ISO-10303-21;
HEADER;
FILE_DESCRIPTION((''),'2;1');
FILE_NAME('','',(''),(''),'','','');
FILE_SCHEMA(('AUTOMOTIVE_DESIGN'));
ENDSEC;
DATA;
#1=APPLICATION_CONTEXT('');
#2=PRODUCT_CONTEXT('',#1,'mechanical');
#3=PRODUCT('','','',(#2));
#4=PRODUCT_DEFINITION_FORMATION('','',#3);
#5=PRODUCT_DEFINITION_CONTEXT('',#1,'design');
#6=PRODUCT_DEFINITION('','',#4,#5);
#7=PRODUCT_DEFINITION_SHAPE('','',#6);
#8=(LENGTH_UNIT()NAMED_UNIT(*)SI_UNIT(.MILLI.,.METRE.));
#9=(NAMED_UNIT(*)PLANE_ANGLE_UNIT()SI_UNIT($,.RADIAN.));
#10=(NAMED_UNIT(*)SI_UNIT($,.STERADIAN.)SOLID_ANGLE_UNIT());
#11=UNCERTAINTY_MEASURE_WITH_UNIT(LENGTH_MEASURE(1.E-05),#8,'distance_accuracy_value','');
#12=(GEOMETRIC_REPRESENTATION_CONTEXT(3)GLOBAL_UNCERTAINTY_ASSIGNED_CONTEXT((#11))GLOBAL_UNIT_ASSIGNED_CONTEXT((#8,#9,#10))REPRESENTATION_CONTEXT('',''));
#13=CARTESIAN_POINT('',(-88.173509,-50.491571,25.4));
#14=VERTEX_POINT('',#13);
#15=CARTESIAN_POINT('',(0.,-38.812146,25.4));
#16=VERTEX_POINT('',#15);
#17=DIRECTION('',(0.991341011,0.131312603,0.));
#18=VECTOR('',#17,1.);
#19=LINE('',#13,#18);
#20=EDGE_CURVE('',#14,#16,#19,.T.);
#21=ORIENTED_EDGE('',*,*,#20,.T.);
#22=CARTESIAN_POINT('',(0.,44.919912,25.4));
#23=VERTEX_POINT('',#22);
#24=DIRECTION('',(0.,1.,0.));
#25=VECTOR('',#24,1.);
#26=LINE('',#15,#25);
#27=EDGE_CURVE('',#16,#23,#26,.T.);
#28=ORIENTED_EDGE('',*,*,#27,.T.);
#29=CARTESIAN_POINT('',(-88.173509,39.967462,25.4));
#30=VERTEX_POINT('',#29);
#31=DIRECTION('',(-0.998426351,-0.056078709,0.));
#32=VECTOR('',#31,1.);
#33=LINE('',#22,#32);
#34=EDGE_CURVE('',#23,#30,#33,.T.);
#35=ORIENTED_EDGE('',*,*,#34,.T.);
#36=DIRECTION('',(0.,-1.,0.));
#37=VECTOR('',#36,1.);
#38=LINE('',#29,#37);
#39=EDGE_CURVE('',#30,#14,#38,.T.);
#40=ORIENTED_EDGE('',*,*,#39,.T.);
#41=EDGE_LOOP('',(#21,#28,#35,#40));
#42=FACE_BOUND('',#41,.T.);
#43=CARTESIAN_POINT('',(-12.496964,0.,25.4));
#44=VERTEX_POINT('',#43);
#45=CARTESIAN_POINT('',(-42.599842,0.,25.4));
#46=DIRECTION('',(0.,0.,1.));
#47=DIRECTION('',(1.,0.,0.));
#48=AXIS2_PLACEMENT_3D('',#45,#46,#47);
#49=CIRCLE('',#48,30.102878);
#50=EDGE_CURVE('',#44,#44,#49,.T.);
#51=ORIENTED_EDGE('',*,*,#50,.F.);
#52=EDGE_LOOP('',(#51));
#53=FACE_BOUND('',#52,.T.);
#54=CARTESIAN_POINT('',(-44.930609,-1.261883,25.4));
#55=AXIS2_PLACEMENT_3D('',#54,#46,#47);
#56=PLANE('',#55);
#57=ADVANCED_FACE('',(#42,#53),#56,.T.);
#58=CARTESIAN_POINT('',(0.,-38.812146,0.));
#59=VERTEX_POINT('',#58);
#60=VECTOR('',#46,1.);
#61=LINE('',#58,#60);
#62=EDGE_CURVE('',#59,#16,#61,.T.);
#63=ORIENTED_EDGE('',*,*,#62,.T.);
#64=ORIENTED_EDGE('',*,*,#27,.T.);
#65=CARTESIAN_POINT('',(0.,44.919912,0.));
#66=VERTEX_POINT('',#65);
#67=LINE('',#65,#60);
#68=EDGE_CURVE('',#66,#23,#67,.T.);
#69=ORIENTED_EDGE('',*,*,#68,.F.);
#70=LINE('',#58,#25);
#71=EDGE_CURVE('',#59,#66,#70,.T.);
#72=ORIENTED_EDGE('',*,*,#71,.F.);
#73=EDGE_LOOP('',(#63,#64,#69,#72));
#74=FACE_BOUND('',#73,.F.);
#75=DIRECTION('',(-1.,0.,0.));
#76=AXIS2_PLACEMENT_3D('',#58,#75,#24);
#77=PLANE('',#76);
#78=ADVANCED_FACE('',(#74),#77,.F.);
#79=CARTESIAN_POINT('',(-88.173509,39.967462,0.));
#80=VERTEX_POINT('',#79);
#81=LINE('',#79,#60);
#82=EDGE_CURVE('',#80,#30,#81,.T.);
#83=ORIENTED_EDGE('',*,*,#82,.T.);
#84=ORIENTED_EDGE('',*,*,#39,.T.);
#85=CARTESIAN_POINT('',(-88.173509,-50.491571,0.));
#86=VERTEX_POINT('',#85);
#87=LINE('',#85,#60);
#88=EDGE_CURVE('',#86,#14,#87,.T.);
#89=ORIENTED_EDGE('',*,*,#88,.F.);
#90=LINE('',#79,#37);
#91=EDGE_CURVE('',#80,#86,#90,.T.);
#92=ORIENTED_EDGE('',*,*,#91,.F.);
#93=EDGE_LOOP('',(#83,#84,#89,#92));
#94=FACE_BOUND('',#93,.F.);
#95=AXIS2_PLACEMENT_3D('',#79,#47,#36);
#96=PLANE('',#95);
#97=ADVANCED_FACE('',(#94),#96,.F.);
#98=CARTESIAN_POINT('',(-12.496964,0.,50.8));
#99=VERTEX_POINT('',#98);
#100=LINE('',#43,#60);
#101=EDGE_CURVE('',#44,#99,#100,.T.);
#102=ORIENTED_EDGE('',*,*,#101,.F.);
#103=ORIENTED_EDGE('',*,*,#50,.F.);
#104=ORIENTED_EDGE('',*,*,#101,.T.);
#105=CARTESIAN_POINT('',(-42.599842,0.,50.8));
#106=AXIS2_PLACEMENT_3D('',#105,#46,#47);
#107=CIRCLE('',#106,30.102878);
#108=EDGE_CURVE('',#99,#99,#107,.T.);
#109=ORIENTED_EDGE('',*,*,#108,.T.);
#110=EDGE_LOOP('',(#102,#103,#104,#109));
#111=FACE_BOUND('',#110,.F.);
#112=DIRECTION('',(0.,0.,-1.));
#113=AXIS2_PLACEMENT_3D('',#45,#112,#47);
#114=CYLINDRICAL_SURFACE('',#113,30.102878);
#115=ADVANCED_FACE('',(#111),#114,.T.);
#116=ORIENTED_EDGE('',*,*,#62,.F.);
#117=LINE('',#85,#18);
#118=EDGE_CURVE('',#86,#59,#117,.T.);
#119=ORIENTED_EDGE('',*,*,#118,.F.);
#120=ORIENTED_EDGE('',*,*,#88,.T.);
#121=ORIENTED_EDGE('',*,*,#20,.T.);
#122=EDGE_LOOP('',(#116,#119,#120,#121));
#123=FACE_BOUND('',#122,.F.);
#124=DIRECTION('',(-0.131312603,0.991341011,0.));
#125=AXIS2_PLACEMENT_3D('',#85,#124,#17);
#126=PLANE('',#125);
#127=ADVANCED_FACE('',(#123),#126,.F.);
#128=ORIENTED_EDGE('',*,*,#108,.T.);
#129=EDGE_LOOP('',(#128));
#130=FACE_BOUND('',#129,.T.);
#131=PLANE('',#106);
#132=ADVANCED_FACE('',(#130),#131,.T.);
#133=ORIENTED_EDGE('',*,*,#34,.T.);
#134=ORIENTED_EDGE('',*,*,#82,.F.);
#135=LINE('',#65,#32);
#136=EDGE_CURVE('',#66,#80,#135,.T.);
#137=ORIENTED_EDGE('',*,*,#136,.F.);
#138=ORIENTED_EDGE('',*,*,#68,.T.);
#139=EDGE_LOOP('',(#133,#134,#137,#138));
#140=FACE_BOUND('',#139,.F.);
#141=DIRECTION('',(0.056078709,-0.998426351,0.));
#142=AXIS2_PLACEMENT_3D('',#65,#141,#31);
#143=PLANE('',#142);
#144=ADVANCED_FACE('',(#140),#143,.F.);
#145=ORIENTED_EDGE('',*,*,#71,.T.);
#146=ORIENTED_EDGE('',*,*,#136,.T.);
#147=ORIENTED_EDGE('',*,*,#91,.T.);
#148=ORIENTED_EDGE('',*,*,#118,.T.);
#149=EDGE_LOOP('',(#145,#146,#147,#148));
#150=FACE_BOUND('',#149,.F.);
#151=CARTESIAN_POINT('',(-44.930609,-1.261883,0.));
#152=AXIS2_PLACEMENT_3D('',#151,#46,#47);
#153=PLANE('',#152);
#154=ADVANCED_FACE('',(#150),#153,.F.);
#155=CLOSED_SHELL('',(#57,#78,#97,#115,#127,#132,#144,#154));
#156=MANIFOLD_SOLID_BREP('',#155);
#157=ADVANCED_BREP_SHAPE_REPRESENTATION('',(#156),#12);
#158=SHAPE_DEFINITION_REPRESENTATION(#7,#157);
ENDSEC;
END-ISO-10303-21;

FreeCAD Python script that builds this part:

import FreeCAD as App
import Part
import Sketcher
Q = App.Units.Quantity


def add_polygon(sketch, points):
    """Adds a closed chain of lines whose ends are joined by coincident constraints."""
    first, n = sketch.GeometryCount, len(points)
    for a, b in zip(points, points[1:] + points[:1]):
        sketch.addGeometry(Part.LineSegment(App.Vector(*a, 0), App.Vector(*b, 0)), False)
    for i in range(n):
        sketch.addConstraint(Sketcher.Constraint("Coincident", first + i, 2, first + (i + 1) % n, 1))

doc = App.newDocument("Part")
body = doc.addObject("PartDesign::Body", "Body")

sketch1 = body.newObject("Sketcher::SketchObject", "Sketch")
sketch1.AttachmentSupport = (doc.getObject("XY_Plane"), [""])
sketch1.MapMode = "FlatFace"
add_polygon(sketch1, [(0, 45), (-88, 40), (-88, -50), (0, -39)])
sketch1.addConstraint(Sketcher.Constraint("Vertical", 1))
sketch1.addConstraint(Sketcher.Constraint("Vertical", 3))
sketch1.addConstraint(Sketcher.Constraint("PointOnObject", 2, 2, -2))
sketch1.addConstraint(Sketcher.Constraint("Distance", 0, 88.312482))
sketch1.addConstraint(Sketcher.Constraint("Distance", 2, 88.943671))
sketch1.addConstraint(Sketcher.Constraint("DistanceY", 1, 2, 1, 1, 90.459033))
sketch1.addConstraint(Sketcher.Constraint("DistanceY", 3, 1, 3, 2, 83.732058))
sketch1.addConstraint(Sketcher.Constraint("DistanceY", -1, 1, 0, 2, 39.967462))
pad1 = body.newObject("PartDesign::Pad", "Pad")
pad1.Profile = sketch1
pad1.Length = Q("1 in")

sketch2 = body.newObject("Sketcher::SketchObject", "Sketch001")
sketch2.AttachmentSupport = (doc.getObject("XY_Plane"), [""])
sketch2.MapMode = "FlatFace"
sketch2.AttachmentOffset = App.Placement(App.Vector(0, 0, 1 * 25.4), App.Rotation())
sketch2.addGeometry(Part.Circle(App.Vector(-43, 0, 0), App.Vector(0, 0, 1), 30), False)
sketch2.addConstraint(Sketcher.Constraint("PointOnObject", 0, 3, -1))
sketch2.addConstraint(Sketcher.Constraint("Diameter", 0, 60.205756))
sketch2.addConstraint(Sketcher.Constraint("DistanceX", 0, 3, -1, 1, 42.599842))
pad2 = body.newObject("PartDesign::Pad", "Pad001")
pad2.Profile = sketch2
pad2.Length = Q("1 in")

doc.recompute()
